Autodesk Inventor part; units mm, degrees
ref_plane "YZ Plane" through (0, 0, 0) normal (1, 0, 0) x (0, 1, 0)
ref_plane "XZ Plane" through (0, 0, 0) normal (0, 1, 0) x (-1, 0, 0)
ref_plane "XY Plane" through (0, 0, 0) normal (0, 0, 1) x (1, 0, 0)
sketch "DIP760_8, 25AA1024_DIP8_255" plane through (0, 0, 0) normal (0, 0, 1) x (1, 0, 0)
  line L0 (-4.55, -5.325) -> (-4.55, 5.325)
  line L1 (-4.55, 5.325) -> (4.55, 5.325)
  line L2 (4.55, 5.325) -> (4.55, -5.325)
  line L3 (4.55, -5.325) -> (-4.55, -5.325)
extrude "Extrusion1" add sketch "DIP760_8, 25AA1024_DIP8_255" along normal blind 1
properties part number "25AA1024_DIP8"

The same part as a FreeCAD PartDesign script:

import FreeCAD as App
import Part
import Sketcher
from FreeCAD import Vector
Q = App.Units.Quantity


def add_polygon(sketch, points):
    """Adds a closed chain of lines whose ends are joined by coincident constraints."""
    first, n = sketch.GeometryCount, len(points)
    for a, b in zip(points, points[1:] + points[:1]):
        sketch.addGeometry(Part.LineSegment(App.Vector(*a, 0), App.Vector(*b, 0)), False)
    for i in range(n):
        sketch.addConstraint(Sketcher.Constraint("Coincident", first + i, 2, first + (i + 1) % n, 1))

doc = App.newDocument("Part")
body = doc.addObject("PartDesign::Body", "Body")

sketch1 = body.newObject("Sketcher::SketchObject", "Sketch")
sketch1.AttachmentSupport = (doc.getObject("XY_Plane"), [""])
sketch1.MapMode = "FlatFace"
add_polygon(sketch1, [(-4.55, 5.325), (-4.55, -5.325), (4.55, -5.325), (4.55, 5.325)])
sketch1.addConstraint(Sketcher.Constraint("Vertical", 0))
sketch1.addConstraint(Sketcher.Constraint("Horizontal", 1))
sketch1.addConstraint(Sketcher.Constraint("Vertical", 2))
sketch1.addConstraint(Sketcher.Constraint("Horizontal", 3))
sketch1.addConstraint(Sketcher.Constraint("Symmetric", 0, 2, 2, 2, -1, 1))
sketch1.addConstraint(Sketcher.Constraint("DistanceX", 1, 1, 1, 2, Q("9.1 mm")))
sketch1.addConstraint(Sketcher.Constraint("DistanceY", 0, 2, 0, 1, Q("10.65 mm")))
pad1 = body.newObject("PartDesign::Pad", "Pad")
pad1.Profile = sketch1
pad1.Length = 1

doc.recompute()
